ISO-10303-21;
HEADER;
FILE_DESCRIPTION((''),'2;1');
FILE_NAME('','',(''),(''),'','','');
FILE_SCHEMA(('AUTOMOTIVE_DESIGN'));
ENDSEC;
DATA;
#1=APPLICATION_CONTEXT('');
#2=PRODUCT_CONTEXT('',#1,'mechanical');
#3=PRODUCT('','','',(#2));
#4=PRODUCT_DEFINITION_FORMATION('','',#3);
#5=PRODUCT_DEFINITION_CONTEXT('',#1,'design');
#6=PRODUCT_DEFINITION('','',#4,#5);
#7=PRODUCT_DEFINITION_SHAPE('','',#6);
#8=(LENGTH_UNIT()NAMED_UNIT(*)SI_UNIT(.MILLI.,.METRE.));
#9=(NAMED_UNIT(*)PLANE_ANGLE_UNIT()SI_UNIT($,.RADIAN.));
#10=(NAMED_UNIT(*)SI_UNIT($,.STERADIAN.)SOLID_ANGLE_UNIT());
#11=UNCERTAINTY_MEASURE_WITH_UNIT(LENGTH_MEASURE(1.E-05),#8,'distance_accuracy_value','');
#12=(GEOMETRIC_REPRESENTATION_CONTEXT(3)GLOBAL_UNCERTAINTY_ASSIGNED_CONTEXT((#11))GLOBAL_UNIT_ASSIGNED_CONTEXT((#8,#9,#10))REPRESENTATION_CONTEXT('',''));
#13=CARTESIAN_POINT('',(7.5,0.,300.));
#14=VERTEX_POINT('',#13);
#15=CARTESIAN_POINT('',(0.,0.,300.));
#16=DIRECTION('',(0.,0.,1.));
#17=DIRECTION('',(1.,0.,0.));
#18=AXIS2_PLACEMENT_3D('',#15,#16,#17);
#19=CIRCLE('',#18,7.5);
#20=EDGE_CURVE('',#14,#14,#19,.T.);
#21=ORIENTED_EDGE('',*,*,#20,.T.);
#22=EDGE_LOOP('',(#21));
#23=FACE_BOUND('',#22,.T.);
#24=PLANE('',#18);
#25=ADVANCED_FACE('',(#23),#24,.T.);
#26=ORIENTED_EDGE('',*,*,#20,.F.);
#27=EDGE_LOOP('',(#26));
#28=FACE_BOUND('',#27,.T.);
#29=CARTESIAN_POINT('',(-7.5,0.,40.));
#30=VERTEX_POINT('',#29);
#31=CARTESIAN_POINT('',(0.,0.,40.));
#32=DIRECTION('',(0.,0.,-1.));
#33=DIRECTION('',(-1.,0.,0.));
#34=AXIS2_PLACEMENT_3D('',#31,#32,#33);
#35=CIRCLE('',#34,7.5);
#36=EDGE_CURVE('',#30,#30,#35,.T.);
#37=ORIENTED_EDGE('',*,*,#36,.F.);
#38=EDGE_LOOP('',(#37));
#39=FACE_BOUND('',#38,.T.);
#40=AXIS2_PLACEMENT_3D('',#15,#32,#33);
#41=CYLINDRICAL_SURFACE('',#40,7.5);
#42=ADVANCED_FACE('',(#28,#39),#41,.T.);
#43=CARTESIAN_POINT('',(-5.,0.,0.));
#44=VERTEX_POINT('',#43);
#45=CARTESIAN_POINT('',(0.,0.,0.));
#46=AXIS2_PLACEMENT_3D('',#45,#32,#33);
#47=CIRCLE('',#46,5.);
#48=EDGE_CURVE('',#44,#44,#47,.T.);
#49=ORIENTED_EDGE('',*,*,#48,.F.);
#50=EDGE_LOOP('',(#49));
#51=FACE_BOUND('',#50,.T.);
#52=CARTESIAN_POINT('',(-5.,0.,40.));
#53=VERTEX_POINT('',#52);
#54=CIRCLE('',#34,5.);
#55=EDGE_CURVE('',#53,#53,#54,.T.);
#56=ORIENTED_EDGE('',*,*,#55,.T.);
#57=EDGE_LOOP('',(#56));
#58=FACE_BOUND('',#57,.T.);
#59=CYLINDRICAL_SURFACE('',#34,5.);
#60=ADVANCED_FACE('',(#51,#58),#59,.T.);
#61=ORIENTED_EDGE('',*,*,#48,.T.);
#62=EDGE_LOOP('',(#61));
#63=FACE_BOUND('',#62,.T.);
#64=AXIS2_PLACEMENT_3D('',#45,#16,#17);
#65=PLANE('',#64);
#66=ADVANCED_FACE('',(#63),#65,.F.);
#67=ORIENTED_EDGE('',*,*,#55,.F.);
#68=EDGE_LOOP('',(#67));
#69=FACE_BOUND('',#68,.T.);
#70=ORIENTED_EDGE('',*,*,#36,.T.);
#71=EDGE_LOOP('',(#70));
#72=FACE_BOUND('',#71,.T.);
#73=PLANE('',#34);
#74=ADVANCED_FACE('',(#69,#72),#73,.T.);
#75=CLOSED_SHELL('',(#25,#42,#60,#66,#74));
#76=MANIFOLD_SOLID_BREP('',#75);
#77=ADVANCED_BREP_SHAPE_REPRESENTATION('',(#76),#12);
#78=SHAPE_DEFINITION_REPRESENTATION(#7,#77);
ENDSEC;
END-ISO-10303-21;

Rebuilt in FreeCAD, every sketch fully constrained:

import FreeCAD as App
import Part
import Sketcher

V = App.Vector
Q = App.Units.Quantity

doc = App.newDocument("Part")
params = doc.addObject("Spreadsheet::Sheet", "Params")
for row, (alias, value) in enumerate([
    ("sketch1_diameter", "15 mm"),
    ("pad1_length", "300 mm"),
    ("sketch2_diameter", "10 mm"),
    ("sketch2_width", "77.15 mm"),
    ("pocket1_length", "40 mm"),
], start=1):
    params.set(f"A{row}", alias)
    params.set(f"B{row}", "=" + value)
    params.setAlias(f"B{row}", alias)

body = doc.addObject("PartDesign::Body", "Body")

sketch1 = body.newObject("Sketcher::SketchObject", "Sketch")
sketch1.AttachmentSupport = (doc.getObject("XY_Plane"), [""])
sketch1.MapMode = "FlatFace"
sketch1.addGeometry(Part.Circle(V(0, 0, 0), V(0, 0, 1), 8), False)
sketch1.addConstraint([
    Sketcher.Constraint("Coincident", 0, 3, -1, 1),
    Sketcher.Constraint("Diameter", 0, Q("15 mm")),
])
sketch1.setExpression("Constraints[1]", "Params.sketch1_diameter")
pad1 = body.newObject("PartDesign::Pad", "Pad")
pad1.Profile = sketch1
pad1.setExpression("Length", "Params.pad1_length")

sketch2 = body.newObject("Sketcher::SketchObject", "Sketch001")
sketch2.AttachmentSupport = (doc.getObject("XY_Plane"), [""])
sketch2.MapMode = "FlatFace"
sketch2.addGeometry([
    Part.LineSegment(V(39, 39, 0), V(39, -39, 0)),
    Part.LineSegment(V(39, -39, 0), V(-39, -39, 0)),
    Part.LineSegment(V(-39, -39, 0), V(-39, 39, 0)),
    Part.LineSegment(V(-39, 39, 0), V(39, 39, 0)),
    Part.Circle(V(0, 0, 0), V(0, 0, 1), 5),
], False)
sketch2.addConstraint([
    Sketcher.Constraint("Coincident", 0, 2, 1, 1),
    Sketcher.Constraint("Coincident", 1, 2, 2, 1),
    Sketcher.Constraint("Coincident", 2, 2, 3, 1),
    Sketcher.Constraint("Coincident", 3, 2, 0, 1),
    Sketcher.Constraint("Vertical", 0),
    Sketcher.Constraint("Horizontal", 1),
    Sketcher.Constraint("Vertical", 2),
    Sketcher.Constraint("Horizontal", 3),
    Sketcher.Constraint("Coincident", 4, 3, -1, 1),
    Sketcher.Constraint("Symmetric", 0, 2, 2, 2, -1, 1),
    Sketcher.Constraint("Equal", 3, 0),
    Sketcher.Constraint("Diameter", 4, Q("10 mm")),
    Sketcher.Constraint("DistanceX", 1, 2, 1, 1, Q("77.15 mm")),
])
sketch2.setExpression("Constraints[11]", "Params.sketch2_diameter")
sketch2.setExpression("Constraints[12]", "Params.sketch2_width")
pocket1 = body.newObject("PartDesign::Pocket", "Pocket")
pocket1.Profile = sketch2
pocket1.setExpression("Length", "Params.pocket1_length")
pocket1.Reversed = True

doc.recompute()
